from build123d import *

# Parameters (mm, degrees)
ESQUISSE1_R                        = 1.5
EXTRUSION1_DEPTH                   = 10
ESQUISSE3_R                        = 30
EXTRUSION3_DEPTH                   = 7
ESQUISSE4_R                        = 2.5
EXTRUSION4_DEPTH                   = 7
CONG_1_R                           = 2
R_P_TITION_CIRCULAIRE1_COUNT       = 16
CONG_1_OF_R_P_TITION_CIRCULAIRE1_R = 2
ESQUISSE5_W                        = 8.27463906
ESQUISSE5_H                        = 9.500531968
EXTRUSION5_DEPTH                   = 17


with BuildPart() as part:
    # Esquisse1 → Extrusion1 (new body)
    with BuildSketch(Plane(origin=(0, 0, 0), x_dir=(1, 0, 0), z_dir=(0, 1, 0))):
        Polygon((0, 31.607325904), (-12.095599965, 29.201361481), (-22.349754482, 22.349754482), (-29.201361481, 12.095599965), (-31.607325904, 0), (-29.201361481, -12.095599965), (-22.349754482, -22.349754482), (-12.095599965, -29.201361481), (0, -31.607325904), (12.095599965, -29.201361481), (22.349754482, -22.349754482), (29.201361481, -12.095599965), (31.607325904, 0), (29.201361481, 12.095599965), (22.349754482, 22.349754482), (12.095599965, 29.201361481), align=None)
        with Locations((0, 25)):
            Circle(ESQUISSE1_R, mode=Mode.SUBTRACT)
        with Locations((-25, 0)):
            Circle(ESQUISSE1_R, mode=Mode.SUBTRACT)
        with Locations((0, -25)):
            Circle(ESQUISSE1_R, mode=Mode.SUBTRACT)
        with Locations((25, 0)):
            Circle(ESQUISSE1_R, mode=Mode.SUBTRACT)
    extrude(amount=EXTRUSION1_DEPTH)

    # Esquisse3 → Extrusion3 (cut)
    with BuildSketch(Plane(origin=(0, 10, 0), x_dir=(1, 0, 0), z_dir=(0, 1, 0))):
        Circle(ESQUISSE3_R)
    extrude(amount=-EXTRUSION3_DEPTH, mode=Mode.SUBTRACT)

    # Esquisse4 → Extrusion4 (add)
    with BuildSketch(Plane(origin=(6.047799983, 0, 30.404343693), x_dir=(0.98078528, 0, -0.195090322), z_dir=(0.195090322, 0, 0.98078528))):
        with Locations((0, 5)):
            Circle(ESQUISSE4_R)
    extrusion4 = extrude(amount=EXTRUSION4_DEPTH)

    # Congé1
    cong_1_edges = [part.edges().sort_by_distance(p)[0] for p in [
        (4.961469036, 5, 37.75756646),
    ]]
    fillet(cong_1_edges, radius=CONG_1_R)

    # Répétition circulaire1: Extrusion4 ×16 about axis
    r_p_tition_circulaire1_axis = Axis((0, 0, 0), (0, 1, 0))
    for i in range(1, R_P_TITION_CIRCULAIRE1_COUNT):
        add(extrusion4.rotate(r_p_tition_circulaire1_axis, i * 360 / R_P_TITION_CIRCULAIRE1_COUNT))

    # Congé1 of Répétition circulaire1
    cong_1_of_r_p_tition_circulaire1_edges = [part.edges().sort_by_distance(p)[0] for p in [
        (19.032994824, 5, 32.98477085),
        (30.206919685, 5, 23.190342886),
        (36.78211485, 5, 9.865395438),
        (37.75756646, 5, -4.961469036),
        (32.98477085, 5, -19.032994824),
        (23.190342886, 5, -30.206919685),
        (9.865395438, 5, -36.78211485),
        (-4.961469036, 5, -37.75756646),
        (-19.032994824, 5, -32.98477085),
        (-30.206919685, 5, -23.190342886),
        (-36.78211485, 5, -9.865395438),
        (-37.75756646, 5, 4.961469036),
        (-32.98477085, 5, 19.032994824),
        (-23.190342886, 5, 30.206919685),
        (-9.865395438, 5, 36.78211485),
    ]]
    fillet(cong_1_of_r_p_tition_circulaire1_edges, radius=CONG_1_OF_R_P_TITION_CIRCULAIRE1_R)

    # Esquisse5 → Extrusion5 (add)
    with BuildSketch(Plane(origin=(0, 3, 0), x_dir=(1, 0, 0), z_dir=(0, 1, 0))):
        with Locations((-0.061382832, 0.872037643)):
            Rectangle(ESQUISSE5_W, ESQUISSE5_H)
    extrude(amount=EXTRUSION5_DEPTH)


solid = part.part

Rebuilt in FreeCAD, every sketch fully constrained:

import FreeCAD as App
import Part
import Sketcher
Q = App.Units.Quantity


def edges_at(feature, points):
    """Names of the edges that pass closest to the given points."""
    edges = feature.Shape.Edges
    near = lambda p: min(range(len(edges)), key=lambda i: edges[i].distToShape(Part.Vertex(*p))[0])
    return sorted({f"Edge{near(p) + 1}" for p in points})


def add_polygon(sketch, points):
    """Adds a closed chain of lines whose ends are joined by coincident constraints."""
    first, n = sketch.GeometryCount, len(points)
    for a, b in zip(points, points[1:] + points[:1]):
        sketch.addGeometry(Part.LineSegment(App.Vector(*a, 0), App.Vector(*b, 0)), False)
    for i in range(n):
        sketch.addConstraint(Sketcher.Constraint("Coincident", first + i, 2, first + (i + 1) % n, 1))

doc = App.newDocument("Part")
body = doc.addObject("PartDesign::Body", "Body")

sketch1 = body.newObject("Sketcher::SketchObject", "Sketch")
sketch1.AttachmentSupport = (doc.getObject("XZ_Plane"), [""])
sketch1.MapMode = "FlatFace"
add_polygon(sketch1, [(0, -31.607326), (-12.0956, -29.201361), (-22.349754, -22.349754), (-29.201361, -12.0956), (-31.607326, 0), (-29.201361, 12.0956), (-22.349754, 22.349754), (-12.0956, 29.201361), (0, 31.607326), (12.0956, 29.201361), (22.349754, 22.349754), (29.201361, 12.0956), (31.607326, 0), (29.201361, -12.0956), (22.349754, -22.349754), (12.0956, -29.201361)])
sketch1.addGeometry(Part.Circle(App.Vector(0, 25, 0), App.Vector(0, 0, 1), 1.5), False)
sketch1.addGeometry(Part.Circle(App.Vector(-25, 0, 0), App.Vector(0, 0, 1), 1.5), False)
sketch1.addGeometry(Part.Circle(App.Vector(25, 0, 0), App.Vector(0, 0, 1), 1.5), False)
sketch1.addGeometry(Part.Circle(App.Vector(0, -25, 0), App.Vector(0, 0, 1), 1.5), False)
sketch1.addConstraint([
    Sketcher.Constraint("Equal", 16, 17),
    Sketcher.Constraint("Equal", 17, 18),
    Sketcher.Constraint("Equal", 18, 19),
    Sketcher.Constraint("Symmetric", 17, 3, 18, 3, -1, 1),
    Sketcher.Constraint("Symmetric", 16, 3, 19, 3, -1, 1),
    Sketcher.Constraint("Symmetric", 0, 2, 8, 2, -1, 1),
    Sketcher.Constraint("Symmetric", 1, 2, 9, 2, -1, 1),
    Sketcher.Constraint("Symmetric", 2, 2, 10, 2, -1, 1),
    Sketcher.Constraint("Symmetric", 3, 2, 11, 2, -1, 1),
    Sketcher.Constraint("Symmetric", 4, 2, 12, 2, -1, 1),
    Sketcher.Constraint("Symmetric", 5, 2, 13, 2, -1, 1),
    Sketcher.Constraint("Symmetric", 6, 2, 14, 2, -1, 1),
    Sketcher.Constraint("Symmetric", 7, 2, 15, 2, -1, 1),
    Sketcher.Constraint("Symmetric", 6, 2, 8, 2, -2),
    Sketcher.Constraint("Symmetric", 5, 2, 9, 2, -2),
    Sketcher.Constraint("Symmetric", 4, 2, 10, 2, -2),
    Sketcher.Constraint("PointOnObject", 16, 3, -2),
    Sketcher.Constraint("PointOnObject", 17, 3, -1),
    Sketcher.Constraint("PointOnObject", 3, 2, -1),
    Sketcher.Constraint("PointOnObject", 7, 2, -2),
    Sketcher.Constraint("Perpendicular", 0, 4),
    Sketcher.Constraint("Perpendicular", 1, 5),
    Sketcher.Constraint("Equal", 0, 1),
    Sketcher.Constraint("Equal", 1, 2),
    Sketcher.Constraint("Equal", 2, 3),
    Sketcher.Constraint("Diameter", 16, Q("3 mm")),
    Sketcher.Constraint("DistanceY", -1, 1, 16, 3, Q("25 mm")),
    Sketcher.Constraint("DistanceX", 17, 3, -1, 1, Q("25 mm")),
    Sketcher.Constraint("Angle", 0, Q("168.75 deg")),
    Sketcher.Constraint("Angle", 1, Q("146.25 deg")),
    Sketcher.Constraint("DistanceX", 0, 2, -1, 1, Q("12.0956 mm")),
])
pad1 = body.newObject("PartDesign::Pad", "Pad")
pad1.Profile = sketch1
pad1.Length = 10
pad1.Reversed = True

sketch2 = body.newObject("Sketcher::SketchObject", "Sketch001")
sketch2.AttachmentSupport = (doc.getObject("XZ_Plane"), [""])
sketch2.MapMode = "FlatFace"
sketch2.AttachmentOffset = App.Placement(App.Vector(0, 0, -10), App.Rotation())
sketch2.addGeometry(Part.Circle(App.Vector(0, 0, 0), App.Vector(0, 0, 1), 30), False)
sketch2.addConstraint([
    Sketcher.Constraint("Coincident", 0, 3, -1, 1),
    Sketcher.Constraint("Diameter", 0, Q("60 mm")),
])
pocket1 = body.newObject("PartDesign::Pocket", "Pocket")
pocket1.Profile = sketch2
pocket1.Length = 7
pocket1.Reversed = True

sketch3 = body.newObject("Sketcher::SketchObject", "Sketch002")
sketch3.Placement = App.Placement(App.Vector(6.0478, 0, 30.404344), App.Rotation(App.Vector(0.98078528, 0, -0.195090322), App.Vector(0, 0.999999999, 0), App.Vector(0.195090322, 0, 0.98078528), "ZXY"))
sketch3.addGeometry(Part.Circle(App.Vector(0, 5, 0), App.Vector(0, 0, 1), 2.5), False)
sketch3.addConstraint([
    Sketcher.Constraint("PointOnObject", 0, 3, -2),
    Sketcher.Constraint("Diameter", 0, Q("5 mm")),
    Sketcher.Constraint("DistanceY", -1, 1, 0, 3, Q("5 mm")),
])
pad2 = body.newObject("PartDesign::Pad", "Pad001")
pad2.Profile = sketch3
pad2.Length = 7
doc.recompute()

fillet = body.newObject("PartDesign::Fillet", "Fillet")
fillet.Base = (pad2, edges_at(pad2, [(4.961, 5, 37.758)]))
fillet.Radius = 2
doc.recompute()

polarpattern = body.newObject("PartDesign::PolarPattern", "PolarPattern")
polarpattern.Originals = [pad2]
polarpattern.Axis = (doc.getObject("Y_Axis"), [""])
polarpattern.Angle = 360
polarpattern.Occurrences = 16
body.Tip = polarpattern
doc.recompute()

fillet2 = body.newObject("PartDesign::Fillet", "Fillet001")
fillet2.Base = (polarpattern, edges_at(polarpattern, [
    (19.033, 5, 32.985),
    (30.207, 5, 23.19),
    (36.782, 5, 9.865),
    (37.758, 5, -4.961),
    (32.985, 5, -19.033),
    (23.19, 5, -30.207),
    (9.865, 5, -36.782),
    (-4.961, 5, -37.758),
    (-19.033, 5, -32.985),
    (-30.207, 5, -23.19),
    (-36.782, 5, -9.865),
    (-37.758, 5, 4.961),
    (-32.985, 5, 19.033),
    (-23.19, 5, 30.207),
    (-9.865, 5, 36.782),
]))
fillet2.Radius = 2

sketch4 = body.newObject("Sketcher::SketchObject", "Sketch003")
sketch4.AttachmentSupport = (doc.getObject("XZ_Plane"), [""])
sketch4.MapMode = "FlatFace"
sketch4.AttachmentOffset = App.Placement(App.Vector(0, 0, -3), App.Rotation())
add_polygon(sketch4, [(-4.198702, -5.622304), (-4.198702, 3.878228), (4.075937, 3.878228), (4.075937, -5.622304)])
sketch4.addConstraint([
    Sketcher.Constraint("Vertical", 0),
    Sketcher.Constraint("Horizontal", 1),
    Sketcher.Constraint("Vertical", 2),
    Sketcher.Constraint("Horizontal", 3),
    Sketcher.Constraint("DistanceX", 1, 1, 1, 2, Q("8.274639 mm")),
    Sketcher.Constraint("DistanceY", 0, 1, 0, 2, Q("9.500532 mm")),
    Sketcher.Constraint("DistanceY", -1, 1, 0, 2, Q("3.878228 mm")),
    Sketcher.Constraint("DistanceX", 0, 2, -1, 1, Q("4.198702 mm")),
])
pad3 = body.newObject("PartDesign::Pad", "Pad002")
pad3.Profile = sketch4
pad3.Length = 17
pad3.Reversed = True

doc.recompute()
